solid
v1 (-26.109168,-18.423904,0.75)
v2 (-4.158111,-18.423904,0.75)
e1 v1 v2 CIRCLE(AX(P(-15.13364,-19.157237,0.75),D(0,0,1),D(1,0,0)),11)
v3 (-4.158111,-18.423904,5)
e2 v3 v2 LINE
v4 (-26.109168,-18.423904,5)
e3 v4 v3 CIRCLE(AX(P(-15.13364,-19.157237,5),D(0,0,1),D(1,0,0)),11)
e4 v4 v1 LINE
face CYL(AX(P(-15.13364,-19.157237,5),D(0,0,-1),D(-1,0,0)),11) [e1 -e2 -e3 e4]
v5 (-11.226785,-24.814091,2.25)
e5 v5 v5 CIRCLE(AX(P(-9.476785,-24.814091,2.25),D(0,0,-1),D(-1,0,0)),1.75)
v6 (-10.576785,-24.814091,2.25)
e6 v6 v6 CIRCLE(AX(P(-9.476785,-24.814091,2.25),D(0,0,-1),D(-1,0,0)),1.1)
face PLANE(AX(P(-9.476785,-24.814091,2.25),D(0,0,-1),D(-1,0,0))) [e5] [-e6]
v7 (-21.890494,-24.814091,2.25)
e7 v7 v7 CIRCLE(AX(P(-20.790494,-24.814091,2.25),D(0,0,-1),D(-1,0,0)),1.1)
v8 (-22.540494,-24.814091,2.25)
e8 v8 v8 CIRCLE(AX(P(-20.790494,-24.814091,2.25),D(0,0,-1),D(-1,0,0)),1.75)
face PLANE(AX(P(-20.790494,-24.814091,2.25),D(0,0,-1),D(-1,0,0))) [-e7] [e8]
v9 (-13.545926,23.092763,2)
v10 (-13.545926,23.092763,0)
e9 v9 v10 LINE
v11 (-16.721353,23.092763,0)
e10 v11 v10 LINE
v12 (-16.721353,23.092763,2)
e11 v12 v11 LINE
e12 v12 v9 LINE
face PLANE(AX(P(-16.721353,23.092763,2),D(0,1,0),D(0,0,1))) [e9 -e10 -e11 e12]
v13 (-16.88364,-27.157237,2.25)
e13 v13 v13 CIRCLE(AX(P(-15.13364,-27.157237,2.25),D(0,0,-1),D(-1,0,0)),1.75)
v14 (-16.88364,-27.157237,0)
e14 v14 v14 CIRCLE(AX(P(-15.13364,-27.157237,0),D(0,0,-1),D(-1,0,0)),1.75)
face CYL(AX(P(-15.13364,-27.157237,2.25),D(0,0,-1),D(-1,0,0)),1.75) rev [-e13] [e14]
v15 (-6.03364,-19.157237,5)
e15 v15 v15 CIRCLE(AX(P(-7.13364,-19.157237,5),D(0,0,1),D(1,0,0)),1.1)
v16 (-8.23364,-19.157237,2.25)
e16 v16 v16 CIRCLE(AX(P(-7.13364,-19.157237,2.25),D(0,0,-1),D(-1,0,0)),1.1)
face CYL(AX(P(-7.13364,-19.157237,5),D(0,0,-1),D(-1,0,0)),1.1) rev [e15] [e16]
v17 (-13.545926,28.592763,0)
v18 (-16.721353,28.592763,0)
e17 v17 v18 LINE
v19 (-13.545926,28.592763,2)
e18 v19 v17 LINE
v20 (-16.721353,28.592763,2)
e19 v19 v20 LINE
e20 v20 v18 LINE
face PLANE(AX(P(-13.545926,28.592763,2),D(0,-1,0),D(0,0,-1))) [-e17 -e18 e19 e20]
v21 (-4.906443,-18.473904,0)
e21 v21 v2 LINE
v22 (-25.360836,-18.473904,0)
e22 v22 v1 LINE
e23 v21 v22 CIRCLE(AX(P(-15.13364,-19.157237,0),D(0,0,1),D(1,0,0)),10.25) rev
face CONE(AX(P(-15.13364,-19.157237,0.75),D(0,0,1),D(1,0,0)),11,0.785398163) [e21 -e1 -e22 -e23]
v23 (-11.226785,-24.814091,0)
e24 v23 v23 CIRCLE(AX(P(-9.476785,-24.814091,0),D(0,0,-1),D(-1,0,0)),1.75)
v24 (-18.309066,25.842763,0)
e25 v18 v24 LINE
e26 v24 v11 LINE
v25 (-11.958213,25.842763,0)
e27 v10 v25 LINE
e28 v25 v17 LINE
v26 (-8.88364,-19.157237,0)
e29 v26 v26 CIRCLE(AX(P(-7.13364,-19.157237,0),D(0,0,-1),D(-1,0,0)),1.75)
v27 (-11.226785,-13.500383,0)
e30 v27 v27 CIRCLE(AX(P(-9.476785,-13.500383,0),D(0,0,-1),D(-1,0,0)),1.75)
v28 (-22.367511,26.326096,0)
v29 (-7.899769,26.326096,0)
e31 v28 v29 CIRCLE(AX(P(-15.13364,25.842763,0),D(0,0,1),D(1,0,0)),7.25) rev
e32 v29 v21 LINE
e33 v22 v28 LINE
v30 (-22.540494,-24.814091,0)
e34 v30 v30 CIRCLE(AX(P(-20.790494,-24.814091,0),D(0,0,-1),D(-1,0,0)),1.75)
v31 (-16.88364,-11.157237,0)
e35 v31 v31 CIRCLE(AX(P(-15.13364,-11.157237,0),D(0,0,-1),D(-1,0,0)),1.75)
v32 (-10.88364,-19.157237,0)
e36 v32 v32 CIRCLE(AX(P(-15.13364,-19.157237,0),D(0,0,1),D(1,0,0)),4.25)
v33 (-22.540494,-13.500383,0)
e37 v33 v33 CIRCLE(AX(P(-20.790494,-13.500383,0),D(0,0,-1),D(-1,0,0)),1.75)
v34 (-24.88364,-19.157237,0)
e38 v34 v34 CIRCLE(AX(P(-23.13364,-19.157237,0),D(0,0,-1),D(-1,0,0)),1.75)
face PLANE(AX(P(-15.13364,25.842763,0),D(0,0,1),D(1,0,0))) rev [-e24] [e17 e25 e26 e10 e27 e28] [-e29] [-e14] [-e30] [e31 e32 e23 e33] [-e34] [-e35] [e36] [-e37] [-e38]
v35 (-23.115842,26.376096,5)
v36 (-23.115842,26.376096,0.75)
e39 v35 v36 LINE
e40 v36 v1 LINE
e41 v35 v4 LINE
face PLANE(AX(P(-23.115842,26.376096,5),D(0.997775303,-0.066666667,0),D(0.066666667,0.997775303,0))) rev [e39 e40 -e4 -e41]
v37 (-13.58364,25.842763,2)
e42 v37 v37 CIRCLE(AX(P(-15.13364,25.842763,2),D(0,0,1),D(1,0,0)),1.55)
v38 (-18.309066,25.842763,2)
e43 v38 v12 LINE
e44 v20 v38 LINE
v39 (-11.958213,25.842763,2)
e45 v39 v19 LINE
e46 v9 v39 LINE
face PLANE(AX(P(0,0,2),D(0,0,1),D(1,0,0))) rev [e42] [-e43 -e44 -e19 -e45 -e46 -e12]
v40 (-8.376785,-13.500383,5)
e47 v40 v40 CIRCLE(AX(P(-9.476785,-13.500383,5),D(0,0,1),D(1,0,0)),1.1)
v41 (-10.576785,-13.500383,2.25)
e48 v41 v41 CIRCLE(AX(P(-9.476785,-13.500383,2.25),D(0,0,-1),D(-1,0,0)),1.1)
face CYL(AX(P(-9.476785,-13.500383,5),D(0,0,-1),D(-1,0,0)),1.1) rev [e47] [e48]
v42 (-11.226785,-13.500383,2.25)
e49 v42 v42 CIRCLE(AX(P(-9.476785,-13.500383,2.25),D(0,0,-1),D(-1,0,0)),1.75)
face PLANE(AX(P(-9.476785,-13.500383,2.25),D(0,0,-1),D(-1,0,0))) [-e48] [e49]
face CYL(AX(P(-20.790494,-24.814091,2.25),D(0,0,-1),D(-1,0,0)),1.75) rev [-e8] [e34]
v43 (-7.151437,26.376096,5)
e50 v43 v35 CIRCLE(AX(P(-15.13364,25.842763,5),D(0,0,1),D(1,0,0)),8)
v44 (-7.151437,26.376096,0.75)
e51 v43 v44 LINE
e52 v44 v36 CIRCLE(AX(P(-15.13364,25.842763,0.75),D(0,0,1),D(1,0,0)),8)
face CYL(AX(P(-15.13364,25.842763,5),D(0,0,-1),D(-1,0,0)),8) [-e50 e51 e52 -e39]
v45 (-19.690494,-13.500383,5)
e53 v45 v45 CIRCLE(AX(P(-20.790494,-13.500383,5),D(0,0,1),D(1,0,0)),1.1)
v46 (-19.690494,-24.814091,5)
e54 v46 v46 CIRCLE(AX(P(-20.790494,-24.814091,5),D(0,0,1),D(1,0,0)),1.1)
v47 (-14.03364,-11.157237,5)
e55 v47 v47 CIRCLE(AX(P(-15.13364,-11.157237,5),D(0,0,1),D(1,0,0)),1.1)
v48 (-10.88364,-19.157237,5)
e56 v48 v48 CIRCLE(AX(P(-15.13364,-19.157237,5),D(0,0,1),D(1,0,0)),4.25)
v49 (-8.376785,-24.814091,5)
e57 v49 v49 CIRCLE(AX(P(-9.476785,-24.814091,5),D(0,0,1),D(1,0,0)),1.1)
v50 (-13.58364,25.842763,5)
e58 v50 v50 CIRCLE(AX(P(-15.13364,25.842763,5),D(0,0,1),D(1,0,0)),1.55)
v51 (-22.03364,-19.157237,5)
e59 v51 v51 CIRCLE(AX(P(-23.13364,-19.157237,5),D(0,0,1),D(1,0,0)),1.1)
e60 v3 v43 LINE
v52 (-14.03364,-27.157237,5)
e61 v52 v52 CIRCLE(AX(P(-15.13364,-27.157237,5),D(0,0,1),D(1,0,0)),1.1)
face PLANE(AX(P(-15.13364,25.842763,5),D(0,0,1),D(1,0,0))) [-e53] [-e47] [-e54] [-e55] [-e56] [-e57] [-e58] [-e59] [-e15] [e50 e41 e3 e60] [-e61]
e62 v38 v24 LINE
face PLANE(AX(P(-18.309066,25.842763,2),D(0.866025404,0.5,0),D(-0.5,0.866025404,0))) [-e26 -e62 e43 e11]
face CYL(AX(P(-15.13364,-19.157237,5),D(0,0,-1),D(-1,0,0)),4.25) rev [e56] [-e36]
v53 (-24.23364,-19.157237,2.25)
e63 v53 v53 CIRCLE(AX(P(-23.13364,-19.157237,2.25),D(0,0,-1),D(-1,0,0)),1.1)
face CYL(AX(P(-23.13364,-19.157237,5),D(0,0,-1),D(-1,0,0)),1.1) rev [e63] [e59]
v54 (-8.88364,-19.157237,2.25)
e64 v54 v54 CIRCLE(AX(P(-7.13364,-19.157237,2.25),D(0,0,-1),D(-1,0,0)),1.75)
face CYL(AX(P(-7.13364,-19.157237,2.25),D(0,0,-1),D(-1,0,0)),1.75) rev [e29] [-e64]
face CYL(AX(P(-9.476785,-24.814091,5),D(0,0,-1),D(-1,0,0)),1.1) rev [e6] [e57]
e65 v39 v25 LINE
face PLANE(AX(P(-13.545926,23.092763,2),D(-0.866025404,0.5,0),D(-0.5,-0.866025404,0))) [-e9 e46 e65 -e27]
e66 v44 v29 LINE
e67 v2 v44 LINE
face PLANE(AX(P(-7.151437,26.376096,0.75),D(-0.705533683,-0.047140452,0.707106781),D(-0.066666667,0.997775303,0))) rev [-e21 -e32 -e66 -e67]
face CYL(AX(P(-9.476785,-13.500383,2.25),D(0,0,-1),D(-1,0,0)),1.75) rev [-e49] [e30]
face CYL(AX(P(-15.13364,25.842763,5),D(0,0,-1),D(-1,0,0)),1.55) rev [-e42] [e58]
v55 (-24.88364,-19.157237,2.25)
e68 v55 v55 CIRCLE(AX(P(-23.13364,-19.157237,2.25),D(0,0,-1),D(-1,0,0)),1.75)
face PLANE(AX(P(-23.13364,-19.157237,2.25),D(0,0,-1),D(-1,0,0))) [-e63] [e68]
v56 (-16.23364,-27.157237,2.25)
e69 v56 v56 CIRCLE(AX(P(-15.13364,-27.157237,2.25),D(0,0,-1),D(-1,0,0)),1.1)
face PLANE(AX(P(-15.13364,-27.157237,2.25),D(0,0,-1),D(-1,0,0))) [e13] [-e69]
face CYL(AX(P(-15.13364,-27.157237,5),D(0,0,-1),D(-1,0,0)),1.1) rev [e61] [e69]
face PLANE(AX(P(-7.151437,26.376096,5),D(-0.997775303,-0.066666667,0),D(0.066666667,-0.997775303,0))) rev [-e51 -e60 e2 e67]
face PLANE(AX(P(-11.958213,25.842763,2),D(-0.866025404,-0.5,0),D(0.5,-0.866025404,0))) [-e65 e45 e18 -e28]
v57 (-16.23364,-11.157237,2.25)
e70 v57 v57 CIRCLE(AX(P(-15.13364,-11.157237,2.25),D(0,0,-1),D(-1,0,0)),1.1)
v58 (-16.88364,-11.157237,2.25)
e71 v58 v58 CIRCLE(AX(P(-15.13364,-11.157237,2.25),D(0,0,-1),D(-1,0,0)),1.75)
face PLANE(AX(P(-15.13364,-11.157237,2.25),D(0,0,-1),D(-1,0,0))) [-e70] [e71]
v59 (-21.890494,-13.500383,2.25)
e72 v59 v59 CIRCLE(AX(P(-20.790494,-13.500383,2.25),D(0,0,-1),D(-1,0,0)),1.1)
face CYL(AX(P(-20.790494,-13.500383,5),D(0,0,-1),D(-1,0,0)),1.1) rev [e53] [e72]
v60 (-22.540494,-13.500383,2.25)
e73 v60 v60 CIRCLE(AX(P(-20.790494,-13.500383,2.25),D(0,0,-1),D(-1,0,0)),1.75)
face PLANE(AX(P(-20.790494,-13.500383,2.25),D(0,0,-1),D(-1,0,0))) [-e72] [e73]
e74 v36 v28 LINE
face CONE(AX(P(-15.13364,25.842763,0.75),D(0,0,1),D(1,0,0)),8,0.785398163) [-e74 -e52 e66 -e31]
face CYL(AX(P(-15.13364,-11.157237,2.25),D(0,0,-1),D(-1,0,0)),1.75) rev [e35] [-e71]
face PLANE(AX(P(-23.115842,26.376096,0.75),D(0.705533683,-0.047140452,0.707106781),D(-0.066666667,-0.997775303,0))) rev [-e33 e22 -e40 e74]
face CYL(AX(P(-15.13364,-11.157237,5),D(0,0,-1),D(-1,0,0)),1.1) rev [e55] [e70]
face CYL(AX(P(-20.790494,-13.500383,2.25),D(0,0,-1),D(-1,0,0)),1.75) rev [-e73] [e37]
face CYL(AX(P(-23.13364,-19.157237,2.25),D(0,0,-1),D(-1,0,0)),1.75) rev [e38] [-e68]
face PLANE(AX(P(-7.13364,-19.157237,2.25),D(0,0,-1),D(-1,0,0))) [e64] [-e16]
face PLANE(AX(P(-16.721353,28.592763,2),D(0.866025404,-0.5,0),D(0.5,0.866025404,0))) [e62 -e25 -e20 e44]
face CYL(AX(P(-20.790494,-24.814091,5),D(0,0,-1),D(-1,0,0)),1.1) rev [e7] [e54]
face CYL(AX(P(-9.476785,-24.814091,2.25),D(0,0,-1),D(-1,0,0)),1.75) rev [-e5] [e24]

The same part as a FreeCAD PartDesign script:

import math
import FreeCAD as App
import Part
import Sketcher

V = App.Vector
Q = App.Units.Quantity


def edges_at(feature, points):
    """Names of the edges that pass closest to the given points."""
    edges = feature.Shape.Edges
    near = lambda p: min(range(len(edges)), key=lambda i: edges[i].distToShape(Part.Vertex(*p))[0])
    return sorted({f"Edge{near(p) + 1}" for p in points})


def add_polygon(sketch, points):
    """Adds a closed chain of lines whose ends are joined by coincident constraints."""
    first, n = sketch.GeometryCount, len(points)
    for a, b in zip(points, points[1:] + points[:1]):
        sketch.addGeometry(Part.LineSegment(App.Vector(*a, 0), App.Vector(*b, 0)), False)
    for i in range(n):
        sketch.addConstraint(Sketcher.Constraint("Coincident", first + i, 2, first + (i + 1) % n, 1))

doc = App.newDocument("Part")
body = doc.addObject("PartDesign::Body", "Body")

# Sketch on XY plane
sketch1 = body.newObject("Sketcher::SketchObject", "Sketch")
sketch1.AttachmentSupport = (doc.getObject("XY_Plane"), [""])
sketch1.MapMode = "FlatFace"
sketch1.addGeometry(Part.LineSegment(V(-23.115842, 26.376096, 0), V(-26.109168, -18.423904, 0)), False)
sketch1.addGeometry(Part.ArcOfCircle(Part.Circle(V(-15.13364, -19.157237, 0), V(0, 0, 1), 11), math.radians(176.177446), math.radians(363.822554)), False)
sketch1.addGeometry(Part.LineSegment(V(-4.158111, -18.423904, 0), V(-7.151437, 26.376096, 0)), False)
sketch1.addGeometry(Part.ArcOfCircle(Part.Circle(V(-15.13364, 25.842763, 0), V(0, 0, 1), 8), math.radians(3.822554), math.radians(176.177446)), False)
sketch1.addGeometry(Part.Circle(V(-20.790494, -24.814091, 0), V(0, 0, 1), 1.1), False)
sketch1.addGeometry(Part.Circle(V(-23.13364, -19.157237, 0), V(0, 0, 1), 1.1), False)
sketch1.addGeometry(Part.Circle(V(-20.790494, -13.500383, 0), V(0, 0, 1), 1.1), False)
sketch1.addGeometry(Part.Circle(V(-15.13364, -27.157237, 0), V(0, 0, 1), 1.1), False)
sketch1.addGeometry(Part.Circle(V(-15.13364, -19.157237, 0), V(0, 0, 1), 4.25), False)
sketch1.addGeometry(Part.Circle(V(-9.476785, -24.814091, 0), V(0, 0, 1), 1.1), False)
sketch1.addGeometry(Part.Circle(V(-7.13364, -19.157237, 0), V(0, 0, 1), 1.1), False)
sketch1.addGeometry(Part.Circle(V(-15.13364, -11.157237, 0), V(0, 0, 1), 1.1), False)
sketch1.addGeometry(Part.Circle(V(-9.476785, -13.500383, 0), V(0, 0, 1), 1.1), False)
sketch1.addGeometry(Part.Circle(V(-15.13364, 25.842763, 0), V(0, 0, 1), 1.55), False)
sketch1.addConstraint(Sketcher.Constraint("Tangent", 0, 2, 1, 1))
sketch1.addConstraint(Sketcher.Constraint("Tangent", 1, 2, 2, 1))
sketch1.addConstraint(Sketcher.Constraint("Tangent", 2, 2, 3, 1))
sketch1.addConstraint(Sketcher.Constraint("Tangent", 3, 2, 0, 1))
sketch1.addConstraint(Sketcher.Constraint("Coincident", 8, 3, 1, 3))
sketch1.addConstraint(Sketcher.Constraint("Coincident", 13, 3, 3, 3))
sketch1.addConstraint(Sketcher.Constraint("Equal", 4, 5))
sketch1.addConstraint(Sketcher.Constraint("Equal", 5, 6))
sketch1.addConstraint(Sketcher.Constraint("Equal", 6, 7))
sketch1.addConstraint(Sketcher.Constraint("Equal", 7, 9))
sketch1.addConstraint(Sketcher.Constraint("Equal", 9, 10))
sketch1.addConstraint(Sketcher.Constraint("Equal", 10, 11))
sketch1.addConstraint(Sketcher.Constraint("Equal", 11, 12))
sketch1.addConstraint(Sketcher.Constraint("Horizontal", 1, 3, 5, 3))
sketch1.addConstraint(Sketcher.Constraint("Horizontal", 4, 3, 9, 3))
sketch1.addConstraint(Sketcher.Constraint("Horizontal", 8, 3, 10, 3))
sketch1.addConstraint(Sketcher.Constraint("Horizontal", 6, 3, 12, 3))
sketch1.addConstraint(Sketcher.Constraint("Horizontal", 0, 2, 1, 2))
sketch1.addConstraint(Sketcher.Constraint("Vertical", 4, 3, 6, 3))
sketch1.addConstraint(Sketcher.Constraint("Vertical", 3, 3, 7, 3))
sketch1.addConstraint(Sketcher.Constraint("Vertical", 8, 3, 11, 3))
sketch1.addConstraint(Sketcher.Constraint("Vertical", 9, 3, 12, 3))
sketch1.addConstraint(Sketcher.Constraint("Radius", 1, 11.0))
sketch1.addConstraint(Sketcher.Constraint("Radius", 3, 8.0))
sketch1.addConstraint(Sketcher.Constraint("Diameter", 4, 2.2))
sketch1.addConstraint(Sketcher.Constraint("Diameter", 8, 8.5))
sketch1.addConstraint(Sketcher.Constraint("Diameter", 13, 3.1))
sketch1.addConstraint(Sketcher.Constraint("DistanceY", 1, 3, 3, 3, 45.0))
sketch1.addConstraint(Sketcher.Constraint("DistanceX", 5, 3, 1, 3, 8.0))
sketch1.addConstraint(Sketcher.Constraint("DistanceY", 7, 3, 1, 3, 8.0))
sketch1.addConstraint(Sketcher.Constraint("DistanceX", 1, 3, 10, 3, 8.0))
sketch1.addConstraint(Sketcher.Constraint("DistanceY", 1, 3, 11, 3, 8.0))
sketch1.addConstraint(Sketcher.Constraint("DistanceX", 1, 3, -1, 1, 15.13364))
sketch1.addConstraint(Sketcher.Constraint("DistanceY", 4, 3, -1, 1, 24.814091))
sketch1.addConstraint(Sketcher.Constraint("DistanceY", 4, 3, 6, 3, 11.313708))
sketch1.addConstraint(Sketcher.Constraint("DistanceX", 4, 3, 9, 3, 11.313708))
sketch1.addConstraint(Sketcher.Constraint("DistanceY", 0, 2, 6, 3, 4.923521))
sketch1.addConstraint(Sketcher.Constraint("DistanceX", 12, 3, 2, 2, 2.325348))
pad1 = body.newObject("PartDesign::Pad", "Pad")
pad1.Profile = sketch1
pad1.Length = 5

# Sketch on XY plane
sketch2 = body.newObject("Sketcher::SketchObject", "Sketch001")
sketch2.AttachmentSupport = (doc.getObject("XY_Plane"), [""])
sketch2.MapMode = "FlatFace"
add_polygon(sketch2, [(-13.545926, 23.092763), (-11.958213, 25.842763), (-13.545926, 28.592763), (-16.721353, 28.592763), (-18.309066, 25.842763), (-16.721353, 23.092763)])  # lines 0-5
sketch2.addConstraint(Sketcher.Constraint("Horizontal", 2))
sketch2.addConstraint(Sketcher.Constraint("Horizontal", 5))
sketch2.addConstraint(Sketcher.Constraint("Parallel", 0, 3))
sketch2.addConstraint(Sketcher.Constraint("Parallel", 1, 4))
sketch2.addConstraint(Sketcher.Constraint("Horizontal", 0, 2, 3, 2))
sketch2.addConstraint(Sketcher.Constraint("Vertical", 2, 2, 4, 2))
sketch2.addConstraint(Sketcher.Constraint("Vertical", 1, 2, 5, 2))
sketch2.addConstraint(Sketcher.Constraint("Angle", 0, Q("60 deg")))
sketch2.addConstraint(Sketcher.Constraint("DistanceY", 4, 2, 2, 2, 5.5))
sketch2.addConstraint(Sketcher.Constraint("DistanceX", 2, 2, 2, 1, 3.175426))
sketch2.addConstraint(Sketcher.Constraint("DistanceX", 0, 2, -1, 1, 11.958213))
sketch2.addConstraint(Sketcher.Constraint("DistanceY", -1, 1, 0, 2, 25.842763))
pocket1 = body.newObject("PartDesign::Pocket", "Pocket")
pocket1.Profile = sketch2
pocket1.Length = 2
pocket1.Reversed = True

# Sketch on XY plane
sketch3 = body.newObject("Sketcher::SketchObject", "Sketch002")
sketch3.AttachmentSupport = (doc.getObject("XY_Plane"), [""])
sketch3.MapMode = "FlatFace"
sketch3.addGeometry(Part.Circle(V(-23.13364, -19.157237, 0), V(0, 0, 1), 1.75), False)
sketch3.addGeometry(Part.Circle(V(-20.790494, -24.814091, 0), V(0, 0, 1), 1.75), False)
sketch3.addGeometry(Part.Circle(V(-15.13364, -27.157237, 0), V(0, 0, 1), 1.75), False)
sketch3.addGeometry(Part.Circle(V(-9.476785, -24.814091, 0), V(0, 0, 1), 1.75), False)
sketch3.addGeometry(Part.Circle(V(-7.13364, -19.157237, 0), V(0, 0, 1), 1.75), False)
sketch3.addGeometry(Part.Circle(V(-9.476785, -13.500383, 0), V(0, 0, 1), 1.75), False)
sketch3.addGeometry(Part.Circle(V(-15.13364, -11.157237, 0), V(0, 0, 1), 1.75), False)
sketch3.addGeometry(Part.Circle(V(-20.790494, -13.500383, 0), V(0, 0, 1), 1.75), False)
sketch3.addConstraint(Sketcher.Constraint("Equal", 0, 1))
sketch3.addConstraint(Sketcher.Constraint("Equal", 1, 2))
sketch3.addConstraint(Sketcher.Constraint("Equal", 2, 3))
sketch3.addConstraint(Sketcher.Constraint("Equal", 3, 4))
sketch3.addConstraint(Sketcher.Constraint("Equal", 4, 5))
sketch3.addConstraint(Sketcher.Constraint("Equal", 5, 6))
sketch3.addConstraint(Sketcher.Constraint("Equal", 6, 7))
sketch3.addConstraint(Sketcher.Constraint("Horizontal", 1, 3, 3, 3))
sketch3.addConstraint(Sketcher.Constraint("Horizontal", 0, 3, 4, 3))
sketch3.addConstraint(Sketcher.Constraint("Horizontal", 5, 3, 7, 3))
sketch3.addConstraint(Sketcher.Constraint("Vertical", 3, 3, 5, 3))
sketch3.addConstraint(Sketcher.Constraint("Vertical", 2, 3, 6, 3))
sketch3.addConstraint(Sketcher.Constraint("Vertical", 1, 3, 7, 3))
sketch3.addConstraint(Sketcher.Constraint("Diameter", 0, 3.5))
sketch3.addConstraint(Sketcher.Constraint("DistanceX", 0, 3, 2, 3, 8.0))
sketch3.addConstraint(Sketcher.Constraint("DistanceY", 2, 3, 0, 3, 8.0))
sketch3.addConstraint(Sketcher.Constraint("DistanceX", 2, 3, 4, 3, 8.0))
sketch3.addConstraint(Sketcher.Constraint("DistanceY", 4, 3, 6, 3, 8.0))
sketch3.addConstraint(Sketcher.Constraint("DistanceX", 0, 3, -1, 1, 23.13364))
sketch3.addConstraint(Sketcher.Constraint("DistanceY", 1, 3, -1, 1, 24.814091))
sketch3.addConstraint(Sketcher.Constraint("DistanceX", 1, 3, 3, 3, 11.313708))
sketch3.addConstraint(Sketcher.Constraint("DistanceY", 3, 3, 5, 3, 11.313708))
sketch3.addConstraint(Sketcher.Constraint("DistanceY", 0, 3, -1, 1, 19.157237))
sketch3.addConstraint(Sketcher.Constraint("DistanceX", 1, 3, -1, 1, 20.790494))
pocket2 = body.newObject("PartDesign::Pocket", "Pocket001")
pocket2.Profile = sketch3
pocket2.Length = 2.25
pocket2.Reversed = True
doc.recompute()

chamfer = body.newObject("PartDesign::Chamfer", "Chamfer")
chamfer.Base = (pocket2, edges_at(pocket2, [
    (-5.655, 3.976, 0),
    (-15.134, -30.157, 0),
    (-24.613, 3.976, 0),
    (-15.134, 33.843, 0),
]))
chamfer.Size = 0.75

doc.recompute()
